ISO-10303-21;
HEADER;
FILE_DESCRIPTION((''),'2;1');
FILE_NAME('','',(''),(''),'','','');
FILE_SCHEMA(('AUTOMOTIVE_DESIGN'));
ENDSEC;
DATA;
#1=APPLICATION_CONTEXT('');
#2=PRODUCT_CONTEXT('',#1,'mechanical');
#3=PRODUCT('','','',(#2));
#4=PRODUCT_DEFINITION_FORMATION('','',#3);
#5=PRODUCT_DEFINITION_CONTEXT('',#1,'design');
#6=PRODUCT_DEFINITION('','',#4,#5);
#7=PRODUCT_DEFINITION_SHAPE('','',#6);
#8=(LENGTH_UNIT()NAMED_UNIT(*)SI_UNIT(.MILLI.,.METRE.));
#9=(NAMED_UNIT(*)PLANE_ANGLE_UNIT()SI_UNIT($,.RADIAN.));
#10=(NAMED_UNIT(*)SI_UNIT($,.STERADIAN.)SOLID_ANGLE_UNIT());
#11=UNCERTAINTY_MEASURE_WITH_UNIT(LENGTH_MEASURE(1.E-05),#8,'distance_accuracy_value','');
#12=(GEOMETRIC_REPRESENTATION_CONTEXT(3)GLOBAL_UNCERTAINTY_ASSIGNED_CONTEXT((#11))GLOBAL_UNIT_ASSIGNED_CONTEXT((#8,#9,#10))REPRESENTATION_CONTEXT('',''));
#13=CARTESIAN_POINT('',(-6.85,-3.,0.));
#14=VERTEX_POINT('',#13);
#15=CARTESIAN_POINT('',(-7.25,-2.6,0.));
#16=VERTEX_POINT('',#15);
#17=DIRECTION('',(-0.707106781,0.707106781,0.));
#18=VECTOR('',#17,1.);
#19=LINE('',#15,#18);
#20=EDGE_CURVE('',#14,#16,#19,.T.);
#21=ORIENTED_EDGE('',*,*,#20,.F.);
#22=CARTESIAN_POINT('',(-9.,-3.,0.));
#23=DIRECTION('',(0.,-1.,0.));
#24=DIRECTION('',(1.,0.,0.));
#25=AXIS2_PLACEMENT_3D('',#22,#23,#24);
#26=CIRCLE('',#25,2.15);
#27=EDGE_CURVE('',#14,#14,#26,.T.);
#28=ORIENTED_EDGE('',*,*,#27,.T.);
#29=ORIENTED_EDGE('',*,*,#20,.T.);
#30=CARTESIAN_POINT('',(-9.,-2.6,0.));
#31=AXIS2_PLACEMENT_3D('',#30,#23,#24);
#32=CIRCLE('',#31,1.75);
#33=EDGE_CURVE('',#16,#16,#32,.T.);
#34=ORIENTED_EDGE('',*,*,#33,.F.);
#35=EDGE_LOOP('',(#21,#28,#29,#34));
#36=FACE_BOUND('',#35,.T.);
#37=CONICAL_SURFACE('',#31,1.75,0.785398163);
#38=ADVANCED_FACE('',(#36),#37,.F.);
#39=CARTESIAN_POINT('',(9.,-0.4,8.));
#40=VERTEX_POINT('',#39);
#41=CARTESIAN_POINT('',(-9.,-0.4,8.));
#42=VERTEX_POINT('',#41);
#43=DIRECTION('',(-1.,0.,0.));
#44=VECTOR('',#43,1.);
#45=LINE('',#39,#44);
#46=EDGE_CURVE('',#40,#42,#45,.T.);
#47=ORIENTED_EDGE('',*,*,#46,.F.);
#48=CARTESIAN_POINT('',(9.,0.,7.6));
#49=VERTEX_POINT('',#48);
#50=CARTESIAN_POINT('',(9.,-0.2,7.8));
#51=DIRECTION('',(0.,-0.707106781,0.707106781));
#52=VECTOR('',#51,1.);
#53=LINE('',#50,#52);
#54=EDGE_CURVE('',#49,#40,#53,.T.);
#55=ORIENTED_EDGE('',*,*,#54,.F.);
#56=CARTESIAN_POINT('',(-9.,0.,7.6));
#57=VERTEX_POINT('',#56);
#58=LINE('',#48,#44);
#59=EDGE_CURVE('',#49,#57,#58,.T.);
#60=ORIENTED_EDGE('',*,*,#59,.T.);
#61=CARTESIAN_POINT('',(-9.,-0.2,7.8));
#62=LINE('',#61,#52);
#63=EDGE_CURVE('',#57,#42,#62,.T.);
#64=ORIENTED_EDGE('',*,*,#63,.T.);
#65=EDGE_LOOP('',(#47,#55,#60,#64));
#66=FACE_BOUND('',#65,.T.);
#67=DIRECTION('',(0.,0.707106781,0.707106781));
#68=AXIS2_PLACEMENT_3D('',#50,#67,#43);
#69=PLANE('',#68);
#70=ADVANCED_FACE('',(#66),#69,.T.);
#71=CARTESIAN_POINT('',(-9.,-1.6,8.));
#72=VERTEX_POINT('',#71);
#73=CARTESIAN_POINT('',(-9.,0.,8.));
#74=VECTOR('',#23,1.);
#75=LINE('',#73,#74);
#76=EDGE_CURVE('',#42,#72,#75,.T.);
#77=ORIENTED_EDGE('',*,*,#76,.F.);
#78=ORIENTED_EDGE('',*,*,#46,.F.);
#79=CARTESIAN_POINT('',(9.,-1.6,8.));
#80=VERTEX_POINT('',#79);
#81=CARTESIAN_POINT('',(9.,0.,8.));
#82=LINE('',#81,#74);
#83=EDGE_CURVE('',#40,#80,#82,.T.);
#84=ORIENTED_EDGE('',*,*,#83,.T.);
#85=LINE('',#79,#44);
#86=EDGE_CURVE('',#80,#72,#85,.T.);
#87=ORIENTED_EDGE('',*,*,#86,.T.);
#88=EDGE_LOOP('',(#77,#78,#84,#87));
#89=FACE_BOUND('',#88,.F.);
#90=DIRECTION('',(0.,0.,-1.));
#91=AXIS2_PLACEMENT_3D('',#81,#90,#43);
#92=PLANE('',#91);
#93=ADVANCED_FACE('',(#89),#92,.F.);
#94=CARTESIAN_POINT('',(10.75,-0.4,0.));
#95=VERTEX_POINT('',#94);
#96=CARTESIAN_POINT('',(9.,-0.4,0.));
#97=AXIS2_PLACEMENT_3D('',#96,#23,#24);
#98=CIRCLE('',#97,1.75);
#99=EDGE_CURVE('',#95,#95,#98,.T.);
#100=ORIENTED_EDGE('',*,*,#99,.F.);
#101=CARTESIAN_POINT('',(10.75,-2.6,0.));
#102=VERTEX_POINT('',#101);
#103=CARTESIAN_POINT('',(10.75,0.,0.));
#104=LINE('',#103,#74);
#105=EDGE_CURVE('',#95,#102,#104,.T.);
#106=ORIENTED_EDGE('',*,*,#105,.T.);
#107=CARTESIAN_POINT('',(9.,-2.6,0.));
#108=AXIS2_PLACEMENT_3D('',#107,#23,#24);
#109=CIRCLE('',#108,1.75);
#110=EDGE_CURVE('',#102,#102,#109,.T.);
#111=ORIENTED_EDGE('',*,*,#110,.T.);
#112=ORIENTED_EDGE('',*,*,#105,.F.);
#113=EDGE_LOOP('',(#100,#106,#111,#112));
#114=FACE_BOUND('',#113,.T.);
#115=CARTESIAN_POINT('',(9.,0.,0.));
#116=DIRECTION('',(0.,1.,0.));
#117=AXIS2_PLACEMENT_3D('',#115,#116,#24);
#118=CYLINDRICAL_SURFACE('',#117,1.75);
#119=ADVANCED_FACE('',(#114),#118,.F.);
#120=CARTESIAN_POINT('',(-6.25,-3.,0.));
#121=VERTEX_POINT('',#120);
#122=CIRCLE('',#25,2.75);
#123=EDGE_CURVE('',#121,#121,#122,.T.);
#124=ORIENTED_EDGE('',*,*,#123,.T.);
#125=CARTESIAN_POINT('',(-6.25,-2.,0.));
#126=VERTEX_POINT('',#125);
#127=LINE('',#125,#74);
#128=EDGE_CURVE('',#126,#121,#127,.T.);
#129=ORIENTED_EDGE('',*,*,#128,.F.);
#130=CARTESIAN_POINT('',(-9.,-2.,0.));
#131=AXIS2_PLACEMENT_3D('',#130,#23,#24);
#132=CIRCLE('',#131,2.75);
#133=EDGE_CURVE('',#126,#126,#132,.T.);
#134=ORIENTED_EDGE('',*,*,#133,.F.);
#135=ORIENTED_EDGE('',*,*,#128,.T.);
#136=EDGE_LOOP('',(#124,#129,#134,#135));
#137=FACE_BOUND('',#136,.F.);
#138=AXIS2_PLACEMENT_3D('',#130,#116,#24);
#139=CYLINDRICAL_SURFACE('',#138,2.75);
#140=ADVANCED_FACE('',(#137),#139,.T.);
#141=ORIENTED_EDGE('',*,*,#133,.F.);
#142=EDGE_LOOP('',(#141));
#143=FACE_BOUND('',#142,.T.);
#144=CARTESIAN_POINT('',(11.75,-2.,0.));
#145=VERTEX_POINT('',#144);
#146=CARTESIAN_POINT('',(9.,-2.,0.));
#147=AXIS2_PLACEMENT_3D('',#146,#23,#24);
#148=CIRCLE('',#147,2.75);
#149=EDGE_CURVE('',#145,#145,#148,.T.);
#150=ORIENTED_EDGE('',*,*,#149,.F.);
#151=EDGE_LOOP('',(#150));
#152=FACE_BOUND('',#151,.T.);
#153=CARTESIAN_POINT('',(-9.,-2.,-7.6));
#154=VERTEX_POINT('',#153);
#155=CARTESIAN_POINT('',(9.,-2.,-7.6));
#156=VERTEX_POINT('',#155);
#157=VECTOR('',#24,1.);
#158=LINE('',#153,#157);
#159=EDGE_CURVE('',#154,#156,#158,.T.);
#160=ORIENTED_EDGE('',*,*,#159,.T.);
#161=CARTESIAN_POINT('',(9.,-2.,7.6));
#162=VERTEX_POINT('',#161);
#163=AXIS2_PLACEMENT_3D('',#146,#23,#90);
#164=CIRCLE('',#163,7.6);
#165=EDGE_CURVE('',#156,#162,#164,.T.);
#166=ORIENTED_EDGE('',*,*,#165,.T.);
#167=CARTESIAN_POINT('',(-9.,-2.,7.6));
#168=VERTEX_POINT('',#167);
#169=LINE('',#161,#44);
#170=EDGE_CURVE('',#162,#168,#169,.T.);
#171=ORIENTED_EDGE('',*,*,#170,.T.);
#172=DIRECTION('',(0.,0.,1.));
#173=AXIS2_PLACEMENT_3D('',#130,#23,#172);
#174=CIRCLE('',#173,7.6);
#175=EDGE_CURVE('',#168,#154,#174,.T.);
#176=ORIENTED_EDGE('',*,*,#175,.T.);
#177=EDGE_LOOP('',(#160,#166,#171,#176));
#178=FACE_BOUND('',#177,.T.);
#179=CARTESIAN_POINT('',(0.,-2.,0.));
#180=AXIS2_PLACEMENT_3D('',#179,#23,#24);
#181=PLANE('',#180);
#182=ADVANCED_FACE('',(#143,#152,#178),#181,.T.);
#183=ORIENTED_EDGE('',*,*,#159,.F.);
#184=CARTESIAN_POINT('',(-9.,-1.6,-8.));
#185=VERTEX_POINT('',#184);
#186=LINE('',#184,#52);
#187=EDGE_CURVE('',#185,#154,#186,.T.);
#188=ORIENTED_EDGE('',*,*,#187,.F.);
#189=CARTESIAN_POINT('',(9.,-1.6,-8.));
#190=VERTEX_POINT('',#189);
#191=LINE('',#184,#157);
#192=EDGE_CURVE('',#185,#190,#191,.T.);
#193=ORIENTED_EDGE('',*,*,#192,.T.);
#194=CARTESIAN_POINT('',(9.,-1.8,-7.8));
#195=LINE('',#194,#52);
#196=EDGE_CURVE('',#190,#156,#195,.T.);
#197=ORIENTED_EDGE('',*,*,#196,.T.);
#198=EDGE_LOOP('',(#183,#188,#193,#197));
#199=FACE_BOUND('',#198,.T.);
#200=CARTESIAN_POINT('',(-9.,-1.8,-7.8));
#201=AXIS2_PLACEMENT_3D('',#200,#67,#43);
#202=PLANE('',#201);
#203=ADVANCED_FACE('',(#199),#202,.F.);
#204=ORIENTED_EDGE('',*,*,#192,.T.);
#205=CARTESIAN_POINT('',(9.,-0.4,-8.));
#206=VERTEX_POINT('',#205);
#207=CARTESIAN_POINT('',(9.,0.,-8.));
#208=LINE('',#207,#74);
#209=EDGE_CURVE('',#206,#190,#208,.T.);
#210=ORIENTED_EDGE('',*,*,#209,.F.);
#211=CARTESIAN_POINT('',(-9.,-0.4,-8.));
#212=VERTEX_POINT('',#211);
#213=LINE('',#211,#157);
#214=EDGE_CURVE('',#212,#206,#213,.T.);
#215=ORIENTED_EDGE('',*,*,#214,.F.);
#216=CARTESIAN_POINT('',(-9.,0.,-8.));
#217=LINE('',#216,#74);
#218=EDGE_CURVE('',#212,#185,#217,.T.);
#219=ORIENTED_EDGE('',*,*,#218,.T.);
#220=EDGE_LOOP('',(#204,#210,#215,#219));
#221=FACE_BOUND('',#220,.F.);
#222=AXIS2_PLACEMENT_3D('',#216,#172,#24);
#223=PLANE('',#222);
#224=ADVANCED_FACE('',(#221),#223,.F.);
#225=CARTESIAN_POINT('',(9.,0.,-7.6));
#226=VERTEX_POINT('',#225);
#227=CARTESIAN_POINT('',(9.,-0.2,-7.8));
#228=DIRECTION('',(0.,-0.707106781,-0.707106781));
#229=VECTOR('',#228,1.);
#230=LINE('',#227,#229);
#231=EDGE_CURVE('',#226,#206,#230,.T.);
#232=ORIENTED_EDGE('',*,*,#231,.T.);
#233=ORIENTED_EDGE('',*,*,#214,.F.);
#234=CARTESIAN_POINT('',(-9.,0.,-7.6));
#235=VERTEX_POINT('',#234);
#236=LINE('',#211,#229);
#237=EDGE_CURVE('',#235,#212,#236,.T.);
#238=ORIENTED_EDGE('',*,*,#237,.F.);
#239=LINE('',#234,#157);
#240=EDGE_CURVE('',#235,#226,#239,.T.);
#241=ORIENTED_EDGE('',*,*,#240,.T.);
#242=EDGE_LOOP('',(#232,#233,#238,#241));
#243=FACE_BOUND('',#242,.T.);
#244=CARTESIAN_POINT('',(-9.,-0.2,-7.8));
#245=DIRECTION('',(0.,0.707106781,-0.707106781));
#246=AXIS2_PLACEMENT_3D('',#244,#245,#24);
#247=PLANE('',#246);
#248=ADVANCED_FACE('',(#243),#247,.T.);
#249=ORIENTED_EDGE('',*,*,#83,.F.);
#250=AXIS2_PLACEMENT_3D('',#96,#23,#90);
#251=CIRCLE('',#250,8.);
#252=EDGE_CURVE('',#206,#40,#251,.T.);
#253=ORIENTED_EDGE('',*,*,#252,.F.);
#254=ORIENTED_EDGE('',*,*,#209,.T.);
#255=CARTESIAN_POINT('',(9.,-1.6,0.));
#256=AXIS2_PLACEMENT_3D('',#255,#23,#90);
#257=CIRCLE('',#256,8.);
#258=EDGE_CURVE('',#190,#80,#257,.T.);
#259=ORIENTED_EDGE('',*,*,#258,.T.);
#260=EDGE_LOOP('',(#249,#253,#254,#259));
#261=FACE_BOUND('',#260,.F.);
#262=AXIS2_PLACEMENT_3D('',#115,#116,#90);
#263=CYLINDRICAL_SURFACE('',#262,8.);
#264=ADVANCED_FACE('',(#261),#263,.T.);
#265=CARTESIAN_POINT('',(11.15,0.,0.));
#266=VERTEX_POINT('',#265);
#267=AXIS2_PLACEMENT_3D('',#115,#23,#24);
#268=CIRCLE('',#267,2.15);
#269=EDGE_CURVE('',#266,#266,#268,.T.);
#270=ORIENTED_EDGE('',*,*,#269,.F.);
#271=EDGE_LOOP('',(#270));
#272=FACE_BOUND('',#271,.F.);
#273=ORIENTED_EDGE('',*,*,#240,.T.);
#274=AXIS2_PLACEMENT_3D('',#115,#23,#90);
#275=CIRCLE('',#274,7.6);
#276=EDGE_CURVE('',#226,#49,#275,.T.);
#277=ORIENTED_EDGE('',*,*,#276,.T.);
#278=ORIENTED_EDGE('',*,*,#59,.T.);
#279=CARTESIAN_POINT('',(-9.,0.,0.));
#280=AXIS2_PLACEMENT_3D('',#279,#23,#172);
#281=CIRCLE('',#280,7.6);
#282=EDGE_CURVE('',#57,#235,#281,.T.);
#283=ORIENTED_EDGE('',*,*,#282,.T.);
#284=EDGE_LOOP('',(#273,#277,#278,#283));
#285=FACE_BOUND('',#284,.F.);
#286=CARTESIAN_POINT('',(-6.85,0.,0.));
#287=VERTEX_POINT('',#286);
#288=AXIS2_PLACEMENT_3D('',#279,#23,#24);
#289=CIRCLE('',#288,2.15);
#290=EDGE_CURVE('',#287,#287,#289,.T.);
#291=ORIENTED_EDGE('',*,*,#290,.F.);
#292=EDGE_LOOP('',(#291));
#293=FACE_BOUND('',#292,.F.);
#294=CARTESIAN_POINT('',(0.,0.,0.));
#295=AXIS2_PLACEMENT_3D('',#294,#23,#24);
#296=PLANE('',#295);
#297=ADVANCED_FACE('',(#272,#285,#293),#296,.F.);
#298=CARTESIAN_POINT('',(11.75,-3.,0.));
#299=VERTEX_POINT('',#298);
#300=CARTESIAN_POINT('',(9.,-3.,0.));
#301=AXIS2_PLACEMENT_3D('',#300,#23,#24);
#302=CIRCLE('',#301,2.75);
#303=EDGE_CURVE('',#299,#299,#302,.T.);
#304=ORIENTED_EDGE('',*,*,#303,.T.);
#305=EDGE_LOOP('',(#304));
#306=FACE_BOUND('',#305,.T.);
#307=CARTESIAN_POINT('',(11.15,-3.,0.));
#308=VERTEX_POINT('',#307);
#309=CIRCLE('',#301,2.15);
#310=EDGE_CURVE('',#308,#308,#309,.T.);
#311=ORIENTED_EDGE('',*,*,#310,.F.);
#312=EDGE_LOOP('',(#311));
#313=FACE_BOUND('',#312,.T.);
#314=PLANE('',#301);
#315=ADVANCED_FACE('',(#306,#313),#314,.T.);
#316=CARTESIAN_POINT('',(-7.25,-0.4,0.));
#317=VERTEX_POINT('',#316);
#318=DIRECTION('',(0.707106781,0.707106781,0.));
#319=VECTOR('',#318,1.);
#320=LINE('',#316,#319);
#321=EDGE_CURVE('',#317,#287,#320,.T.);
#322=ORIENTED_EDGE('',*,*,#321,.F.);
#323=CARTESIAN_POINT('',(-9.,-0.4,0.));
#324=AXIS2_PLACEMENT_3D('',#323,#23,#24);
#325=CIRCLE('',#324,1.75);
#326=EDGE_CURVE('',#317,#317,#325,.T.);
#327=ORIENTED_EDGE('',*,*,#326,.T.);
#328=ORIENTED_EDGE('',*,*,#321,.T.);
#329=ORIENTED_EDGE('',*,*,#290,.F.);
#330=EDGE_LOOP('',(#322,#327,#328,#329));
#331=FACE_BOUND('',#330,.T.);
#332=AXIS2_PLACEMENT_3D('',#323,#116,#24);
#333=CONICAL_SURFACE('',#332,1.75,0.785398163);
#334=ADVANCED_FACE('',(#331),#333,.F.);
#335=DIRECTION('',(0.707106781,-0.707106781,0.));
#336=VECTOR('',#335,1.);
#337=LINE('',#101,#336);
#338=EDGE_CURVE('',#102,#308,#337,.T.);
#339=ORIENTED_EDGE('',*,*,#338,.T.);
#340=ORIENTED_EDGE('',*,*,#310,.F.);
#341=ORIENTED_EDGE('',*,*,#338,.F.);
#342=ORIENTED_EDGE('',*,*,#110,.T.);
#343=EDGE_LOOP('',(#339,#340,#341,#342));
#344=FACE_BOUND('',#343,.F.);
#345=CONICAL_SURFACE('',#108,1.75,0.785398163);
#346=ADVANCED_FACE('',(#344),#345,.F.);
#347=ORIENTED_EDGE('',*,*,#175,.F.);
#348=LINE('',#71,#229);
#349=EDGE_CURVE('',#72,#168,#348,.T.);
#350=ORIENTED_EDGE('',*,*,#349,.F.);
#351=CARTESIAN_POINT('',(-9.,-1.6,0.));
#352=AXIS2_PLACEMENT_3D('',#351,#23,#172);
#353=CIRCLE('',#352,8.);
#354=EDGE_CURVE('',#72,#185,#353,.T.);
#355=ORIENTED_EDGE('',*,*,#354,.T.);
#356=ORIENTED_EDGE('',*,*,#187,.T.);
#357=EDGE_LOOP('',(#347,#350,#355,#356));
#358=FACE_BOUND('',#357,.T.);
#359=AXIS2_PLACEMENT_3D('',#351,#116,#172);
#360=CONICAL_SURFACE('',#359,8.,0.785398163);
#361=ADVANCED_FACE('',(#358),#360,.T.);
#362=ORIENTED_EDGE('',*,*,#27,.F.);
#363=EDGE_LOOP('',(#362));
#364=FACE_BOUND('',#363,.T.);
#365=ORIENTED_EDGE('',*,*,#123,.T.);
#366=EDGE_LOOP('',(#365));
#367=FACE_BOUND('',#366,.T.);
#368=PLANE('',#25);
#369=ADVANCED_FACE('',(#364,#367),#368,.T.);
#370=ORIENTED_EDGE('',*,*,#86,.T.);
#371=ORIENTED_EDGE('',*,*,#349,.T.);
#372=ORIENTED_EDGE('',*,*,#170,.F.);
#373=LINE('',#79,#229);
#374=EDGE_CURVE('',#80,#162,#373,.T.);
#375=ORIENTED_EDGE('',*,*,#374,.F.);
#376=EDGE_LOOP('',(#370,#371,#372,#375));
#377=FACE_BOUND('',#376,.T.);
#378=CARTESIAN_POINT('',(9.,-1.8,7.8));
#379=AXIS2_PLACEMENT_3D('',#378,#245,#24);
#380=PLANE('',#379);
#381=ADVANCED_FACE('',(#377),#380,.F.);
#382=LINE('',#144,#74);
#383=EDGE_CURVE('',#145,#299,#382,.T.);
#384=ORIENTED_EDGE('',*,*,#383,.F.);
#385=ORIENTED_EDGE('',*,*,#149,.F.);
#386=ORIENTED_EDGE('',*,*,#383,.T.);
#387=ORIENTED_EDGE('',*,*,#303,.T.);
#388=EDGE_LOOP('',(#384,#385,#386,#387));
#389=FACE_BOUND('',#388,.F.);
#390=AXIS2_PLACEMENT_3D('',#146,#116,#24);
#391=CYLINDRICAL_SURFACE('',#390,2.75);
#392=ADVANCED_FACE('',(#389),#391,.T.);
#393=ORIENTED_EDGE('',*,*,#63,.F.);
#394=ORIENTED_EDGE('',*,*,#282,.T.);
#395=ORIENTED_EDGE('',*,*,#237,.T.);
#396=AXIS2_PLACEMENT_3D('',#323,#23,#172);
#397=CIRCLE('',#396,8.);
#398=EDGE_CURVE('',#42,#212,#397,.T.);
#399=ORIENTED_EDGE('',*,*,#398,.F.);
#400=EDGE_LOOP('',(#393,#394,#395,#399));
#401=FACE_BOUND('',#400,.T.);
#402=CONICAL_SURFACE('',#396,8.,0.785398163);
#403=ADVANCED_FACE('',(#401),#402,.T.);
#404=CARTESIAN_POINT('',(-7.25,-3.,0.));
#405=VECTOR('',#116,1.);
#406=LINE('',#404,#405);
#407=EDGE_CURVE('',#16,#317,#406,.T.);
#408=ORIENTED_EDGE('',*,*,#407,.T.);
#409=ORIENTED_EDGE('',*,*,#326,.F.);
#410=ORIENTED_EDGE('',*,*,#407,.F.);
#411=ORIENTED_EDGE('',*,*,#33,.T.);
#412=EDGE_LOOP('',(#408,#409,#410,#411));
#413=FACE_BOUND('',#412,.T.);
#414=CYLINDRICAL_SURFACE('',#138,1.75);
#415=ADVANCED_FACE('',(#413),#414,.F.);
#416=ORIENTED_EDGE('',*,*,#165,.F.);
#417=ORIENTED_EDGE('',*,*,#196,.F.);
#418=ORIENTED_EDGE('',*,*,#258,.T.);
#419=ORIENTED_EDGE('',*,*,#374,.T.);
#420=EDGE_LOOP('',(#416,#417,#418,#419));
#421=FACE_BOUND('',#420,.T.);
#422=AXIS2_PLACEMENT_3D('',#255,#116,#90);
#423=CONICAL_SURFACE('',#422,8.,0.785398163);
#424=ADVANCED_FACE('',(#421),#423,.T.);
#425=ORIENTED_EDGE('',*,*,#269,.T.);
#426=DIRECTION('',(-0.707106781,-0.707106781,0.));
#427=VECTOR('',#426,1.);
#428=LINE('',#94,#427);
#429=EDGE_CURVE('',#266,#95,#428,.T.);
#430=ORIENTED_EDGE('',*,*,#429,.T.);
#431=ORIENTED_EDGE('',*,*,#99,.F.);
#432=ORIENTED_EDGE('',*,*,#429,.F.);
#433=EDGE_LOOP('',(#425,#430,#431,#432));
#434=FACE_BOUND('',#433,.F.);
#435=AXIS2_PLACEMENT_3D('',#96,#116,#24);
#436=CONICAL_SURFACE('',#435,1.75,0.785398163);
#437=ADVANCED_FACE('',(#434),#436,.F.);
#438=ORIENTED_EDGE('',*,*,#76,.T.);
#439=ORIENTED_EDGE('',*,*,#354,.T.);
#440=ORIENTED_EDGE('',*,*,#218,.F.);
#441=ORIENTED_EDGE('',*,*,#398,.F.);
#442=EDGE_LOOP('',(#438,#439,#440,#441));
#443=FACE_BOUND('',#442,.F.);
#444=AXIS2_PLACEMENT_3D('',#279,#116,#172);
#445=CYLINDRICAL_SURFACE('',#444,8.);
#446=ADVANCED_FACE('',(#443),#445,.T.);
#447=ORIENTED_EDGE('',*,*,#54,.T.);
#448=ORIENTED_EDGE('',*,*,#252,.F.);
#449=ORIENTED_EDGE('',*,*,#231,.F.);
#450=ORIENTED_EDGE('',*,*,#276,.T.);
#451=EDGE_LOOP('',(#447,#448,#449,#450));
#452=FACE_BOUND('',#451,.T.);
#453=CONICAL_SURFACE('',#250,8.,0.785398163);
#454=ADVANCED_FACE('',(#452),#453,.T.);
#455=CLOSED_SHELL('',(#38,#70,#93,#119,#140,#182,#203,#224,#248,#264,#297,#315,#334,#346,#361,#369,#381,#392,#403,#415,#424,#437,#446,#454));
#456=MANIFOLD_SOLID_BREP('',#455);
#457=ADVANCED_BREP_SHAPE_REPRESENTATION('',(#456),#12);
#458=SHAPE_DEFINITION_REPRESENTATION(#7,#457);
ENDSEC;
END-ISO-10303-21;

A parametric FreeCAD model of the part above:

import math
import FreeCAD as App
import Part
import Sketcher

V = App.Vector
Q = App.Units.Quantity


def edges_at(feature, points):
    """Names of the edges that pass closest to the given points."""
    edges = feature.Shape.Edges
    near = lambda p: min(range(len(edges)), key=lambda i: edges[i].distToShape(Part.Vertex(*p))[0])
    return sorted({f"Edge{near(p) + 1}" for p in points})

doc = App.newDocument("Part")
body = doc.addObject("PartDesign::Body", "Body")

# Sketch on XZ plane
sketch1 = doc.addObject("Sketcher::SketchObject", "Sketch")
body.addObject(sketch1)
sketch1.AttachmentSupport = (doc.XZ_Plane, [""])
sketch1.MapMode = "FlatFace"
sketch1.addGeometry([
    Part.ArcOfCircle(Part.Circle(V(-9, 0, 0), V(0, 0, 1), 8), math.radians(90), math.radians(270)),  # 0
    Part.LineSegment(V(-9, -8, 0), V(9, -8, 0)),  # 1
    Part.ArcOfCircle(Part.Circle(V(9, 0, 0), V(0, 0, 1), 8), math.radians(-90), math.radians(90)),  # 2
    Part.LineSegment(V(9, 8, 0), V(-9, 8, 0)),  # 3
    Part.Circle(V(-9, 0, 0), V(0, 0, 1), 1.8),  # 4
    Part.Circle(V(9, 0, 0), V(0, 0, 1), 1.8),  # 5
], False)
sketch1.addConstraint([
    Sketcher.Constraint("Tangent", 0, 2, 1, 1),
    Sketcher.Constraint("Tangent", 1, 2, 2, 1),
    Sketcher.Constraint("Tangent", 2, 2, 3, 1),
    Sketcher.Constraint("Tangent", 3, 2, 0, 1),
    Sketcher.Constraint("Horizontal", 1),
    Sketcher.Constraint("Horizontal", 3),
    Sketcher.Constraint("Coincident", 4, 3, 0, 3),
    Sketcher.Constraint("Coincident", 5, 3, 2, 3),
    Sketcher.Constraint("Equal", 4, 5),
    Sketcher.Constraint("Symmetric", 0, 3, 2, 3, -1, 1),
    Sketcher.Constraint("Radius", 0, Q("8 mm")),
    Sketcher.Constraint("Diameter", 4, Q("3.5 mm")),
    Sketcher.Constraint("DistanceX", 1, 1, 1, 2, Q("18 mm")),
])
pad1 = doc.addObject("PartDesign::Pad", "Pad")
body.addObject(pad1)
pad1.Profile = sketch1
pad1.Length = 2

# Sketch on XZ plane
sketch2 = doc.addObject("Sketcher::SketchObject", "Sketch001")
body.addObject(sketch2)
sketch2.AttachmentSupport = (doc.XZ_Plane, [""])
sketch2.MapMode = "FlatFace"
sketch2.AttachmentOffset = App.Placement(V(0, 0, 2), App.Rotation())
sketch2.addGeometry([
    Part.Circle(V(-9, 0, 0), V(0, 0, 1), 2.8),
    Part.Circle(V(-9, 0, 0), V(0, 0, 1), 1.8),
    Part.Circle(V(9, 0, 0), V(0, 0, 1), 2.8),
    Part.Circle(V(9, 0, 0), V(0, 0, 1), 1.8),
], False)
sketch2.addConstraint([
    Sketcher.Constraint("Coincident", 1, 3, 0, 3),
    Sketcher.Constraint("Coincident", 3, 3, 2, 3),
    Sketcher.Constraint("Equal", 0, 2),
    Sketcher.Constraint("Equal", 1, 3),
    Sketcher.Constraint("Symmetric", 0, 3, 2, 3, -1, 1),
    Sketcher.Constraint("PointOnObject", 0, 3, -1),
    Sketcher.Constraint("Diameter", 0, Q("5.5 mm")),
    Sketcher.Constraint("Diameter", 1, Q("3.5 mm")),
    Sketcher.Constraint("DistanceX", 0, 3, -1, 1, Q("9 mm")),
])
pad2 = doc.addObject("PartDesign::Pad", "Pad001")
body.addObject(pad2)
pad2.Profile = sketch2
pad2.Length = 1
doc.recompute()

chamfer = doc.addObject("PartDesign::Chamfer", "Chamfer")
body.addObject(chamfer)
chamfer.Base = (pad2, edges_at(pad2, [
    (-17, -2, 0),
    (0, -2, -8),
    (0, -2, 8),
    (17, -2, 0),
    (0, 0, 8),
    (-17, 0, 0),
    (0, 0, -8),
    (17, 0, 0),
    (-10.75, 0, 0),
    (7.25, 0, 0),
    (-10.75, -3, 0),
    (7.25, -3, 0),
]))
chamfer.Size = 0.4

doc.recompute()
